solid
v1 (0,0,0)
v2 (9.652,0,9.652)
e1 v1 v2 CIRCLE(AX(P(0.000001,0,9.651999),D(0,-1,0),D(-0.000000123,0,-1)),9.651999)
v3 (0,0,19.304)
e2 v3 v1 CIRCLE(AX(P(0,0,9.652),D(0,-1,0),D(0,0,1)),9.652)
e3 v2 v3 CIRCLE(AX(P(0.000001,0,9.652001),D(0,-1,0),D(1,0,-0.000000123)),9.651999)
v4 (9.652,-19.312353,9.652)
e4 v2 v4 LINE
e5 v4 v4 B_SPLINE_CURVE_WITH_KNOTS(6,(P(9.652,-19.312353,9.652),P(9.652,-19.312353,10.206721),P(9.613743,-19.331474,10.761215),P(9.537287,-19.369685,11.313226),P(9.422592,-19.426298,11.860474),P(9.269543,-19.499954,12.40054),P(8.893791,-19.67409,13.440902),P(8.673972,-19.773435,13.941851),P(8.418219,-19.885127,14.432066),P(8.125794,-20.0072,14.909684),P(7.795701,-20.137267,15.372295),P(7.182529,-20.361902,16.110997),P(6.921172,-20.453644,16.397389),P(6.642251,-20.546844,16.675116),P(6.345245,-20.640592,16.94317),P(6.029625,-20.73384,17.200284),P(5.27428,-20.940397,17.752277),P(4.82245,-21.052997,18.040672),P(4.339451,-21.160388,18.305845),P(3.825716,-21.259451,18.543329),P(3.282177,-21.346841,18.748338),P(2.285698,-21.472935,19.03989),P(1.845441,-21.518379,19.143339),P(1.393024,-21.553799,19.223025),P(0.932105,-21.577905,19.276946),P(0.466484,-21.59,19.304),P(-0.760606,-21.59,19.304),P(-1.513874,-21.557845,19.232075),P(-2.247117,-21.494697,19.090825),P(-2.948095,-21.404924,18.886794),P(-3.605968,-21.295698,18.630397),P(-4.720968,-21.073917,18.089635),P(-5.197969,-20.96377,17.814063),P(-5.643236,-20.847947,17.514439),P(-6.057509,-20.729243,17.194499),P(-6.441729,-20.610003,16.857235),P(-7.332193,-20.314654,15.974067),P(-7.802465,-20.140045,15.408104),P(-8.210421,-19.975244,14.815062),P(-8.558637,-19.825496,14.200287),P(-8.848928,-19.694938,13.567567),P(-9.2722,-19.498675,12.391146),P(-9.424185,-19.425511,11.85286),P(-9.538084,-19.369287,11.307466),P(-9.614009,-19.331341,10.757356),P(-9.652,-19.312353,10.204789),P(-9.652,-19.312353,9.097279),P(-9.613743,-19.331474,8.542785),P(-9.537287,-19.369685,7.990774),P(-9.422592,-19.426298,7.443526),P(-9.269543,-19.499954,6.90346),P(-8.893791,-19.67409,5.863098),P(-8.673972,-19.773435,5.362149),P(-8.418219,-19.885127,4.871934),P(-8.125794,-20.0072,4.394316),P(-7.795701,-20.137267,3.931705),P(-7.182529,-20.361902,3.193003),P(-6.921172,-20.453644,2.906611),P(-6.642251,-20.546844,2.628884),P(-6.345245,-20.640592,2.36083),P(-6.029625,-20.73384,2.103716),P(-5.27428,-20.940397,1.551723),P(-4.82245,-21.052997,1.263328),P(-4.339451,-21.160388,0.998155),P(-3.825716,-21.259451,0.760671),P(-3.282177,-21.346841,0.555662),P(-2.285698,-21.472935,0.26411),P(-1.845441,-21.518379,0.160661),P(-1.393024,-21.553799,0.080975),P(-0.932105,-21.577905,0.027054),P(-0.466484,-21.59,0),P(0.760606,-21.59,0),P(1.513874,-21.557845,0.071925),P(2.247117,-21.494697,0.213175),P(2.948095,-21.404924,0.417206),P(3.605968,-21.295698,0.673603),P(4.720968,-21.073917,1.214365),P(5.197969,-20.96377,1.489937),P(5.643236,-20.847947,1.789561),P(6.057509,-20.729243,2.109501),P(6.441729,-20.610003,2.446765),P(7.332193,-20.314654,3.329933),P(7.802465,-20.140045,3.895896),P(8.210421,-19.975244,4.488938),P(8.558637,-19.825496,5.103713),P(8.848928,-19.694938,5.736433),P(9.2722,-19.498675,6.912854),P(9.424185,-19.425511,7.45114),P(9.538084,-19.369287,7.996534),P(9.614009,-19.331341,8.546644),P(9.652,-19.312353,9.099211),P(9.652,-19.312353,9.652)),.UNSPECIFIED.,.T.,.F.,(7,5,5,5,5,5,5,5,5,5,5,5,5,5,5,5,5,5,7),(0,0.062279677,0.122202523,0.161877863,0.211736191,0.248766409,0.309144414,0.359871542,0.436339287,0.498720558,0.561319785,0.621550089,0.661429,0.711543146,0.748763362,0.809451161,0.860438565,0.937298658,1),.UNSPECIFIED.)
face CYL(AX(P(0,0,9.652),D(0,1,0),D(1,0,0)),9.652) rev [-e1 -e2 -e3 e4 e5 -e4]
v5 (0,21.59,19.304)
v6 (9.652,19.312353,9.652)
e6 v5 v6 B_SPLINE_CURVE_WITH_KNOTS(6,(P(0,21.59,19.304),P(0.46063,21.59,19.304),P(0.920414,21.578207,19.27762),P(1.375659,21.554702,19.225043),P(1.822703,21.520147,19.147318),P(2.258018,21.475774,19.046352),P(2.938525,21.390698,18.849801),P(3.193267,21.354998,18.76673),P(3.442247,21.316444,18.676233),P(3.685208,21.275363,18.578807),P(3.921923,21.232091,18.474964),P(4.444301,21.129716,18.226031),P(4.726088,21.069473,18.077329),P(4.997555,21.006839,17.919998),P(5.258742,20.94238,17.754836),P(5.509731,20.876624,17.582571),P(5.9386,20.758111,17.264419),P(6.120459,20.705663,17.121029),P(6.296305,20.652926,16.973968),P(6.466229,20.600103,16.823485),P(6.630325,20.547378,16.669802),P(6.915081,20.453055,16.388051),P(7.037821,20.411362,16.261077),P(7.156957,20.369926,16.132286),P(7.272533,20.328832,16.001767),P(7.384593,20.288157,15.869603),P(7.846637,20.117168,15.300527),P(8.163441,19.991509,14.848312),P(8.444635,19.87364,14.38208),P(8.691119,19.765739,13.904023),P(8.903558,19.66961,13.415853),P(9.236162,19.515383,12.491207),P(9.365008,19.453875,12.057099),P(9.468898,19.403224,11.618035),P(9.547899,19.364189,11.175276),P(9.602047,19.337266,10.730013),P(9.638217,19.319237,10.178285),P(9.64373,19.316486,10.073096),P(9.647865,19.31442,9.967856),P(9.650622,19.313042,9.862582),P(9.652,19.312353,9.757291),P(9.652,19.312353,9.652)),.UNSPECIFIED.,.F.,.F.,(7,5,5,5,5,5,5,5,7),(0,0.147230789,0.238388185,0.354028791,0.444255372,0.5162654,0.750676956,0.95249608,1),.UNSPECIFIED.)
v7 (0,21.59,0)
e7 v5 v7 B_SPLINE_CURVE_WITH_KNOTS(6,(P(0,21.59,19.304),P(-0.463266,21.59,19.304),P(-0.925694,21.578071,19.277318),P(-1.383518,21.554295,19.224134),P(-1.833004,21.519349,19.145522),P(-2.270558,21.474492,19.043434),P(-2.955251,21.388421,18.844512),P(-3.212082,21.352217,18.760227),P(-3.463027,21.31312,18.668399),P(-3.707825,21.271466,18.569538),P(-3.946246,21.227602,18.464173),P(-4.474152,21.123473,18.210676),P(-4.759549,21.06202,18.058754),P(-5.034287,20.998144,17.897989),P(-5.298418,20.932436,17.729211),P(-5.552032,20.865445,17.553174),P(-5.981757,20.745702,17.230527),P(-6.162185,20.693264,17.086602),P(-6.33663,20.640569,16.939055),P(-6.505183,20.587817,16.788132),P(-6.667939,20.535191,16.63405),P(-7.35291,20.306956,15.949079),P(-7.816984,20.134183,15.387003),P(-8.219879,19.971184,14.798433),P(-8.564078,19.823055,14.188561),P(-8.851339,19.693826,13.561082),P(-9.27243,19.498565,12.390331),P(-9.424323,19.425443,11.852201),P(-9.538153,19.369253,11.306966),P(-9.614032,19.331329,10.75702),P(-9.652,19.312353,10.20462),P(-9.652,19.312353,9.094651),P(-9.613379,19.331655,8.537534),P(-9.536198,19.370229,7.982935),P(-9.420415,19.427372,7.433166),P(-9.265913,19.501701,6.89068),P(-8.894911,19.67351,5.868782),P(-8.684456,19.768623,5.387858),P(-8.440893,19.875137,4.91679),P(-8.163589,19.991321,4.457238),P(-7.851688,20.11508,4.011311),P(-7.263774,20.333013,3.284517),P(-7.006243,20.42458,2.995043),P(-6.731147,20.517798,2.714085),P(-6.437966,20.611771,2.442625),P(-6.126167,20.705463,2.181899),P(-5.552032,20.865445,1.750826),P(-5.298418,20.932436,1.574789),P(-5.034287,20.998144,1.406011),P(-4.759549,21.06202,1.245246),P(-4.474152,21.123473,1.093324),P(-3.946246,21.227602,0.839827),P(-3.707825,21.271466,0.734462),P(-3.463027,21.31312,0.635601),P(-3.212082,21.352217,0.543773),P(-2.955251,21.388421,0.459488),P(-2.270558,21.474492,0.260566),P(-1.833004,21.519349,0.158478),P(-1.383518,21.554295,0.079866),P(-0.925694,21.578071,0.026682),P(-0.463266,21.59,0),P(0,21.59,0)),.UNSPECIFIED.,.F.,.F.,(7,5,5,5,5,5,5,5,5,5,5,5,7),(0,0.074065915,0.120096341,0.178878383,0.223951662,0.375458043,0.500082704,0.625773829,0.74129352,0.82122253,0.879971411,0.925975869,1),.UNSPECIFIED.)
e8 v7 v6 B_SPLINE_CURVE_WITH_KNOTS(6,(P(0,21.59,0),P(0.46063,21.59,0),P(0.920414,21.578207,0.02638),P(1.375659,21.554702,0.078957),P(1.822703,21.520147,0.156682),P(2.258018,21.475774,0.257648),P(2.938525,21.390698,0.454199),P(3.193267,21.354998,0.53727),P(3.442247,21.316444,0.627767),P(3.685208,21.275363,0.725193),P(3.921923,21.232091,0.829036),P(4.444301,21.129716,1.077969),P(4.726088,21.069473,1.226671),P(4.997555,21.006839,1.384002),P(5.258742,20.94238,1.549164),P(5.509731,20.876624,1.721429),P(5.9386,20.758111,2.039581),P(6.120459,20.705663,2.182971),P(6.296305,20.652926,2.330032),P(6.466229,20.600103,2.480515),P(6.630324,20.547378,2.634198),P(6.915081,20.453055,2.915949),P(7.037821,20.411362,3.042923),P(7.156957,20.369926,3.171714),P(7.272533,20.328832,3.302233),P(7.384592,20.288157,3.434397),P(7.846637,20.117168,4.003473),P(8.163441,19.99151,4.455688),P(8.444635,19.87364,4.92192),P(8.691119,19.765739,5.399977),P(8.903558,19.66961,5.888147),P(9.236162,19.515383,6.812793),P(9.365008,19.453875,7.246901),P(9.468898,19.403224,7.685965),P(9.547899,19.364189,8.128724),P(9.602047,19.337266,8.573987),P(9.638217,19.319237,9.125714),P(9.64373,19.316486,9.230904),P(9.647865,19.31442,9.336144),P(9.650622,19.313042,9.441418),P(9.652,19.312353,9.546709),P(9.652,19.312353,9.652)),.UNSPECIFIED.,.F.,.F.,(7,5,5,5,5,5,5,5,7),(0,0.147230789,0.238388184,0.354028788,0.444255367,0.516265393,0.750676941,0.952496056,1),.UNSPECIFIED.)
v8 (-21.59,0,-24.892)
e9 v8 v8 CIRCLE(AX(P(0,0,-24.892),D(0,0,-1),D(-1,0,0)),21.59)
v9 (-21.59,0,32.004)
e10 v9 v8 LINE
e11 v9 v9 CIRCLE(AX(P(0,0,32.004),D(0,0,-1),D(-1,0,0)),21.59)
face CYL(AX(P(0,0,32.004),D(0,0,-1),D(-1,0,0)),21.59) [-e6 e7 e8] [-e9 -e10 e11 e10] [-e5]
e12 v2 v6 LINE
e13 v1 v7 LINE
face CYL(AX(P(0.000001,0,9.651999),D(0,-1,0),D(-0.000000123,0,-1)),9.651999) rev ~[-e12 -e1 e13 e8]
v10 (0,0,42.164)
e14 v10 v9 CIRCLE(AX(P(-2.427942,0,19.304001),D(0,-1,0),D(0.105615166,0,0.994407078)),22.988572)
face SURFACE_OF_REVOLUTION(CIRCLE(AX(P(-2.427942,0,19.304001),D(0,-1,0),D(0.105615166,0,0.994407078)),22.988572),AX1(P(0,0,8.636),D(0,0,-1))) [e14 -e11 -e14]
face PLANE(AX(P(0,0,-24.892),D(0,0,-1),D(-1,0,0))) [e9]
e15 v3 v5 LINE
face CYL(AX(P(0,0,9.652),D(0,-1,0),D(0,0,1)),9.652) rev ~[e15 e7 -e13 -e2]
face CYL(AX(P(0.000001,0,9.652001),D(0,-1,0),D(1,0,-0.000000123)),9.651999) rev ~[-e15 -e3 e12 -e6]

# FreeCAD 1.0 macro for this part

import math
import FreeCAD as App
import Part
import Sketcher

V = App.Vector
Q = App.Units.Quantity

doc = App.newDocument("Part")
body = doc.addObject("PartDesign::Body", "Body")

# Sketch on XZ plane
sketch1 = doc.addObject("Sketcher::SketchObject", "Sketch")
body.addObject(sketch1)
sketch1.AttachmentSupport = (doc.XZ_Plane, [""])
sketch1.MapMode = "FlatFace"
sketch1.addGeometry([
    Part.LineSegment(V(-22, -25, 0), V(0, -25, 0)),
    Part.LineSegment(V(0, -25, 0), V(0, 42, 0)),
    Part.ArcOfCircle(Part.Circle(V(-2, 19, 0), V(0, 0, 1), 23), math.radians(84), math.radians(146)),
    Part.LineSegment(V(-22, 32, 0), V(-22, -25, 0)),
], False)
sketch1.addConstraint([
    Sketcher.Constraint("Coincident", 0, 2, 1, 1),
    Sketcher.Constraint("Coincident", 1, 2, 2, 1),
    Sketcher.Constraint("Coincident", 2, 2, 3, 1),
    Sketcher.Constraint("Coincident", 3, 2, 0, 1),
    Sketcher.Constraint("Horizontal", 0),
    Sketcher.Constraint("Vertical", 1),
    Sketcher.Constraint("Vertical", 3),
    Sketcher.Constraint("PointOnObject", 0, 2, -2),
    Sketcher.Constraint("DistanceX", 0, 1, 0, 2, Q("0.85 in")),
    Sketcher.Constraint("DistanceY", 1, 1, 1, 2, Q("2.64 in")),
    Sketcher.Constraint("DistanceY", 3, 2, 3, 1, Q("2.24 in")),
    Sketcher.Constraint("DistanceY", 2, 3, 1, 2, Q("0.8999999 in")),
    Sketcher.Constraint("DistanceY", -1, 1, 2, 3, Q("0.7600001 in")),
])
revolution = doc.addObject("PartDesign::Revolution", "Revolution")
body.addObject(revolution)
revolution.Profile = sketch1
revolution.ReferenceAxis = (sketch1, ["V_Axis"])
revolution.Angle = 360

# Sketch on XZ plane
sketch2 = doc.addObject("Sketcher::SketchObject", "Sketch001")
body.addObject(sketch2)
sketch2.AttachmentSupport = (doc.XZ_Plane, [""])
sketch2.MapMode = "FlatFace"
sketch2.addGeometry([
    Part.ArcOfCircle(Part.Circle(V(0, 10, 0), V(0, 0, 1), 10), math.radians(90), math.radians(270)),
    Part.ArcOfCircle(Part.Circle(V(0, 10, 0), V(0, 0, 1), 10), math.radians(-90), math.radians(0)),
    Part.ArcOfCircle(Part.Circle(V(0, 10, 0), V(0, 0, 1), 10), math.radians(0), math.radians(90)),
], False)
sketch2.addConstraint([
    Sketcher.Constraint("Tangent", 0, 2, 1, 1),
    Sketcher.Constraint("Tangent", 1, 2, 2, 1),
    Sketcher.Constraint("Tangent", 2, 2, 0, 1),
    Sketcher.Constraint("Coincident", 0, 2, -1, 1),
    Sketcher.Constraint("PointOnObject", 0, 3, -2),
    Sketcher.Constraint("PointOnObject", 2, 2, -2),
    Sketcher.Constraint("Horizontal", 2, 3, 1, 2),
    Sketcher.Constraint("Radius", 0, Q("0.38 in")),
])
pocket1 = doc.addObject("PartDesign::Pocket", "Pocket")
body.addObject(pocket1)
pocket1.Profile = sketch2
pocket1.Length = Q("0.86 in")

# Sketch on XZ plane
sketch3 = doc.addObject("Sketcher::SketchObject", "Sketch002")
body.addObject(sketch3)
sketch3.AttachmentSupport = (doc.XZ_Plane, [""])
sketch3.MapMode = "FlatFace"
sketch3.addGeometry(Part.Circle(V(0, 10, 0), V(0, 0, 1), 10), False)
sketch3.addConstraint([
    Sketcher.Constraint("PointOnObject", 0, 3, -2),
    Sketcher.Constraint("Diameter", 0, Q("0.76 in")),
    Sketcher.Constraint("DistanceY", -1, 1, 0, 3, Q("0.38 in")),
])
pocket2 = doc.addObject("PartDesign::Pocket", "Pocket001")
body.addObject(pocket2)
pocket2.Profile = sketch3
pocket2.Length = Q("0.86 in")
pocket2.Reversed = True

doc.recompute()
